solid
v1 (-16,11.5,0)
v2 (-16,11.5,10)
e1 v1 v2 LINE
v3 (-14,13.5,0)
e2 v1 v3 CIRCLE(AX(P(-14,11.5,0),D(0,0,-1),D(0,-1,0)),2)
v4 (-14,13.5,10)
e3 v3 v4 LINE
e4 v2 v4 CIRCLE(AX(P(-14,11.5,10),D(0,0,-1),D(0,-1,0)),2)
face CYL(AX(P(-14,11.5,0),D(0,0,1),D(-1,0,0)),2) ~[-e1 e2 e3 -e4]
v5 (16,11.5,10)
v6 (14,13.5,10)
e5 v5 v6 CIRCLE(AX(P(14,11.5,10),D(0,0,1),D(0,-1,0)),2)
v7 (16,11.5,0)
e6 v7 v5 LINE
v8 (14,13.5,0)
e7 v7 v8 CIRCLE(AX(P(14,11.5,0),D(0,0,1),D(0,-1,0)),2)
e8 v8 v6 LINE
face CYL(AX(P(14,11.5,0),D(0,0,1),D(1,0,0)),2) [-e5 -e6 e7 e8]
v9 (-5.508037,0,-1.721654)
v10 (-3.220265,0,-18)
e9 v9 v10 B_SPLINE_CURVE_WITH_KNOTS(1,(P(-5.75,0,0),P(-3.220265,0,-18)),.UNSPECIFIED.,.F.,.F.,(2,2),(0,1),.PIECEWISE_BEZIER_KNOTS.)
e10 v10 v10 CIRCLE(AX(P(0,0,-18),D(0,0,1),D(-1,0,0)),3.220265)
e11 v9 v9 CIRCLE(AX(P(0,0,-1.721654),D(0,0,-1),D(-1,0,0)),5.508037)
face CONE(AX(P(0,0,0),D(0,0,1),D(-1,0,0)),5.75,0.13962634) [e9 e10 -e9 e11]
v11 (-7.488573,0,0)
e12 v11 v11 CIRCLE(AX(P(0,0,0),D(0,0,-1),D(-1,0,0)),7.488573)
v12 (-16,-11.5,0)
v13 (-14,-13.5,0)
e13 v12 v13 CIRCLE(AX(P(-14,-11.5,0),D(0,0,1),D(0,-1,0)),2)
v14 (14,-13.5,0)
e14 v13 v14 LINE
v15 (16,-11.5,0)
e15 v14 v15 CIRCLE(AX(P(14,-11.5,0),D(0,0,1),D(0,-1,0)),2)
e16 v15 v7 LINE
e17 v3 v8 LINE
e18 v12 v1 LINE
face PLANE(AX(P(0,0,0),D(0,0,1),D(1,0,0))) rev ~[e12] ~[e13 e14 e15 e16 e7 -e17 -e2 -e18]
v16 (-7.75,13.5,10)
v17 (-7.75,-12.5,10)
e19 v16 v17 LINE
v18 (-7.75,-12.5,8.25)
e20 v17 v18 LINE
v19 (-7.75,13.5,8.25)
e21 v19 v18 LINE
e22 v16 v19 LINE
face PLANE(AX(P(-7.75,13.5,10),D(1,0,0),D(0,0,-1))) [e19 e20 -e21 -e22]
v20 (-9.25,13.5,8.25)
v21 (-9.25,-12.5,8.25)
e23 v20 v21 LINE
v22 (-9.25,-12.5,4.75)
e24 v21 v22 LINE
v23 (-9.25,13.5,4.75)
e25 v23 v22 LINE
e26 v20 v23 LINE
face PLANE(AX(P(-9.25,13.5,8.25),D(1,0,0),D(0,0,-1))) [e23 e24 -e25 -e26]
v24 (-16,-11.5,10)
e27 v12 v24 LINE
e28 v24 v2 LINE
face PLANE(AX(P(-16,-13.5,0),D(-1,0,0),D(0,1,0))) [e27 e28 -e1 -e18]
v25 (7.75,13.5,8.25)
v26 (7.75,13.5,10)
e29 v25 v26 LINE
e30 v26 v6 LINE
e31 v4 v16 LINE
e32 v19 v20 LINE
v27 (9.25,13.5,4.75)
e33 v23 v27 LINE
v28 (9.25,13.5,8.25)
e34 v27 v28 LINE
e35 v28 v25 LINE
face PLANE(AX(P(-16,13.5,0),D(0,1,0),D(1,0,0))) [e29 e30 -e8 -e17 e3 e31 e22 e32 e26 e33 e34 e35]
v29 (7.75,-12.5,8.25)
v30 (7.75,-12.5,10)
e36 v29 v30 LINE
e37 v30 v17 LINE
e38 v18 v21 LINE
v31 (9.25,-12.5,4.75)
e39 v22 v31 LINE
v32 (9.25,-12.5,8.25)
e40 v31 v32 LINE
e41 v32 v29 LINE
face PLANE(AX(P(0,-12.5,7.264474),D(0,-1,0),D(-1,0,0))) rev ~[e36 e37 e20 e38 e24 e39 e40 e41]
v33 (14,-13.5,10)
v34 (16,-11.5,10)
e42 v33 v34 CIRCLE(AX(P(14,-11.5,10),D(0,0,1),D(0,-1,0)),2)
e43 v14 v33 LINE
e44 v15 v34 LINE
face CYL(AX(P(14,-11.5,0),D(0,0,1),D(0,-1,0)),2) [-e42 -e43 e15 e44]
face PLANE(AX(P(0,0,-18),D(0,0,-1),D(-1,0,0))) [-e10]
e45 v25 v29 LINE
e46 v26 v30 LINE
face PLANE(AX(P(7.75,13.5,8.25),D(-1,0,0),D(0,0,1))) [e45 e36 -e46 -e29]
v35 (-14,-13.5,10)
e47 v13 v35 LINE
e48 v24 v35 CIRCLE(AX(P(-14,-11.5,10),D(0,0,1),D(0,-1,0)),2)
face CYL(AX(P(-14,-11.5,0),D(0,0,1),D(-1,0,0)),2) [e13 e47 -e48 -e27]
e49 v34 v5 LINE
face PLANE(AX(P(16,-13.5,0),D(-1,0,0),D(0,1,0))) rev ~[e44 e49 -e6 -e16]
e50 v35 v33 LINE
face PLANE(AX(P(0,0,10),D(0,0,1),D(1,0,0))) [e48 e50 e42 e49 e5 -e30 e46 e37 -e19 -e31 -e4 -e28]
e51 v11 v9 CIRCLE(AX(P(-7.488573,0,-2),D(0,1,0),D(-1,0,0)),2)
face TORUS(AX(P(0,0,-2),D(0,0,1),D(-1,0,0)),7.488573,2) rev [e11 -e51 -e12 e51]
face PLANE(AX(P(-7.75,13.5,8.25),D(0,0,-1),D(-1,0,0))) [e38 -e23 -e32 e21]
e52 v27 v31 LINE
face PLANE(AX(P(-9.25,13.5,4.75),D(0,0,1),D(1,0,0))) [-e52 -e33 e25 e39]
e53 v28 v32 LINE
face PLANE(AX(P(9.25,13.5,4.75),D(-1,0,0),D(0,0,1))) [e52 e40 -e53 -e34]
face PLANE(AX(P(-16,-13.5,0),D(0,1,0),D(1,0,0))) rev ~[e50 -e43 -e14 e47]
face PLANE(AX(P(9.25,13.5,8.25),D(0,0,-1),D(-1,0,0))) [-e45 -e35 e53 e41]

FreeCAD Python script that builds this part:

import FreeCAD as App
import Part
import Sketcher
Q = App.Units.Quantity


def edges_at(feature, points):
    """Names of the edges that pass closest to the given points."""
    edges = feature.Shape.Edges
    near = lambda p: min(range(len(edges)), key=lambda i: edges[i].distToShape(Part.Vertex(*p))[0])
    return sorted({f"Edge{near(p) + 1}" for p in points})


def add_polygon(sketch, points):
    """Adds a closed chain of lines whose ends are joined by coincident constraints."""
    first, n = sketch.GeometryCount, len(points)
    for a, b in zip(points, points[1:] + points[:1]):
        sketch.addGeometry(Part.LineSegment(App.Vector(*a, 0), App.Vector(*b, 0)), False)
    for i in range(n):
        sketch.addConstraint(Sketcher.Constraint("Coincident", first + i, 2, first + (i + 1) % n, 1))

doc = App.newDocument("Part")
body = doc.addObject("PartDesign::Body", "Body")

# Sketch on XY plane
sketch1 = doc.addObject("Sketcher::SketchObject", "Sketch")
body.addObject(sketch1)
sketch1.AttachmentSupport = (doc.XY_Plane, [""])
sketch1.MapMode = "FlatFace"
add_polygon(sketch1, [(-16, 14), (-16, -14), (16, -14), (16, 14)])  # lines 0-3
sketch1.addConstraint([
    Sketcher.Constraint("Vertical", 0),
    Sketcher.Constraint("Horizontal", 1),
    Sketcher.Constraint("Vertical", 2),
    Sketcher.Constraint("Horizontal", 3),
    Sketcher.Constraint("Symmetric", 0, 2, 2, 2, -1, 1),
    Sketcher.Constraint("DistanceX", 1, 1, 1, 2, Q("32 mm")),
    Sketcher.Constraint("DistanceY", 0, 2, 0, 1, Q("27 mm")),
])
pad1 = doc.addObject("PartDesign::Pad", "Pad")
body.addObject(pad1)
pad1.Profile = sketch1
pad1.Length = 10
doc.recompute()

fillet = doc.addObject("PartDesign::Fillet", "Fillet")
body.addObject(fillet)
fillet.Base = (pad1, edges_at(pad1, [
    (-16, -13.5, 5),
    (16, -13.5, 5),
    (16, 13.5, 5),
    (-16, 13.5, 5),
]))
fillet.Radius = 2

# Sketch on XZ plane
sketch2 = doc.addObject("Sketcher::SketchObject", "Sketch001")
body.addObject(sketch2)
sketch2.AttachmentSupport = (doc.XZ_Plane, [""])
sketch2.MapMode = "FlatFace"
sketch2.AttachmentOffset = App.Placement(App.Vector(0, 0, -13.5), App.Rotation())
add_polygon(sketch2, [(-7.8, 8.2), (-7.8, 10), (7.8, 10), (7.8, 8.2), (9.2, 8.2), (9.2, 4.8), (-9.2, 4.8), (-9.2, 8.2)])  # lines 0-7
sketch2.addConstraint([
    Sketcher.Constraint("Vertical", 0),
    Sketcher.Constraint("Horizontal", 1),
    Sketcher.Constraint("Vertical", 2),
    Sketcher.Constraint("Horizontal", 3),
    Sketcher.Constraint("Vertical", 4),
    Sketcher.Constraint("Horizontal", 5),
    Sketcher.Constraint("Vertical", 6),
    Sketcher.Constraint("Horizontal", 7),
    Sketcher.Constraint("Symmetric", 3, 2, 6, 2, -2),
    Sketcher.Constraint("Equal", 3, 7),
    Sketcher.Constraint("DistanceX", 1, 1, 1, 2, Q("15.5 mm")),
    Sketcher.Constraint("DistanceX", 3, 1, 3, 2, Q("1.5 mm")),
    Sketcher.Constraint("DistanceY", 4, 2, 4, 1, Q("3.5 mm")),
    Sketcher.Constraint("DistanceY", -1, 1, 0, 2, Q("10 mm")),
    Sketcher.Constraint("DistanceY", 0, 1, 0, 2, Q("1.75 mm")),
])
pocket1 = doc.addObject("PartDesign::Pocket", "Pocket")
body.addObject(pocket1)
pocket1.Profile = sketch2
pocket1.Length = 26
pocket1.Reversed = True

# Sketch on XY plane
sketch3 = doc.addObject("Sketcher::SketchObject", "Sketch002")
body.addObject(sketch3)
sketch3.AttachmentSupport = (doc.XY_Plane, [""])
sketch3.MapMode = "FlatFace"
sketch3.addGeometry(Part.Circle(App.Vector(0, 0, 0), App.Vector(0, 0, 1), 6), False)
sketch3.addConstraint([
    Sketcher.Constraint("Coincident", 0, 3, -1, 1),
    Sketcher.Constraint("Diameter", 0, Q("11.5 mm")),
])
pad2 = doc.addObject("PartDesign::Pad", "Pad001")
body.addObject(pad2)
pad2.Profile = sketch3
pad2.Length = 18
pad2.Reversed = True
pad2.TaperAngle = -8
doc.recompute()

fillet2 = doc.addObject("PartDesign::Fillet", "Fillet001")
body.addObject(fillet2)
fillet2.Base = (pad2, edges_at(pad2, [(5.75, 0, 0)]))
fillet2.Radius = 2

doc.recompute()
